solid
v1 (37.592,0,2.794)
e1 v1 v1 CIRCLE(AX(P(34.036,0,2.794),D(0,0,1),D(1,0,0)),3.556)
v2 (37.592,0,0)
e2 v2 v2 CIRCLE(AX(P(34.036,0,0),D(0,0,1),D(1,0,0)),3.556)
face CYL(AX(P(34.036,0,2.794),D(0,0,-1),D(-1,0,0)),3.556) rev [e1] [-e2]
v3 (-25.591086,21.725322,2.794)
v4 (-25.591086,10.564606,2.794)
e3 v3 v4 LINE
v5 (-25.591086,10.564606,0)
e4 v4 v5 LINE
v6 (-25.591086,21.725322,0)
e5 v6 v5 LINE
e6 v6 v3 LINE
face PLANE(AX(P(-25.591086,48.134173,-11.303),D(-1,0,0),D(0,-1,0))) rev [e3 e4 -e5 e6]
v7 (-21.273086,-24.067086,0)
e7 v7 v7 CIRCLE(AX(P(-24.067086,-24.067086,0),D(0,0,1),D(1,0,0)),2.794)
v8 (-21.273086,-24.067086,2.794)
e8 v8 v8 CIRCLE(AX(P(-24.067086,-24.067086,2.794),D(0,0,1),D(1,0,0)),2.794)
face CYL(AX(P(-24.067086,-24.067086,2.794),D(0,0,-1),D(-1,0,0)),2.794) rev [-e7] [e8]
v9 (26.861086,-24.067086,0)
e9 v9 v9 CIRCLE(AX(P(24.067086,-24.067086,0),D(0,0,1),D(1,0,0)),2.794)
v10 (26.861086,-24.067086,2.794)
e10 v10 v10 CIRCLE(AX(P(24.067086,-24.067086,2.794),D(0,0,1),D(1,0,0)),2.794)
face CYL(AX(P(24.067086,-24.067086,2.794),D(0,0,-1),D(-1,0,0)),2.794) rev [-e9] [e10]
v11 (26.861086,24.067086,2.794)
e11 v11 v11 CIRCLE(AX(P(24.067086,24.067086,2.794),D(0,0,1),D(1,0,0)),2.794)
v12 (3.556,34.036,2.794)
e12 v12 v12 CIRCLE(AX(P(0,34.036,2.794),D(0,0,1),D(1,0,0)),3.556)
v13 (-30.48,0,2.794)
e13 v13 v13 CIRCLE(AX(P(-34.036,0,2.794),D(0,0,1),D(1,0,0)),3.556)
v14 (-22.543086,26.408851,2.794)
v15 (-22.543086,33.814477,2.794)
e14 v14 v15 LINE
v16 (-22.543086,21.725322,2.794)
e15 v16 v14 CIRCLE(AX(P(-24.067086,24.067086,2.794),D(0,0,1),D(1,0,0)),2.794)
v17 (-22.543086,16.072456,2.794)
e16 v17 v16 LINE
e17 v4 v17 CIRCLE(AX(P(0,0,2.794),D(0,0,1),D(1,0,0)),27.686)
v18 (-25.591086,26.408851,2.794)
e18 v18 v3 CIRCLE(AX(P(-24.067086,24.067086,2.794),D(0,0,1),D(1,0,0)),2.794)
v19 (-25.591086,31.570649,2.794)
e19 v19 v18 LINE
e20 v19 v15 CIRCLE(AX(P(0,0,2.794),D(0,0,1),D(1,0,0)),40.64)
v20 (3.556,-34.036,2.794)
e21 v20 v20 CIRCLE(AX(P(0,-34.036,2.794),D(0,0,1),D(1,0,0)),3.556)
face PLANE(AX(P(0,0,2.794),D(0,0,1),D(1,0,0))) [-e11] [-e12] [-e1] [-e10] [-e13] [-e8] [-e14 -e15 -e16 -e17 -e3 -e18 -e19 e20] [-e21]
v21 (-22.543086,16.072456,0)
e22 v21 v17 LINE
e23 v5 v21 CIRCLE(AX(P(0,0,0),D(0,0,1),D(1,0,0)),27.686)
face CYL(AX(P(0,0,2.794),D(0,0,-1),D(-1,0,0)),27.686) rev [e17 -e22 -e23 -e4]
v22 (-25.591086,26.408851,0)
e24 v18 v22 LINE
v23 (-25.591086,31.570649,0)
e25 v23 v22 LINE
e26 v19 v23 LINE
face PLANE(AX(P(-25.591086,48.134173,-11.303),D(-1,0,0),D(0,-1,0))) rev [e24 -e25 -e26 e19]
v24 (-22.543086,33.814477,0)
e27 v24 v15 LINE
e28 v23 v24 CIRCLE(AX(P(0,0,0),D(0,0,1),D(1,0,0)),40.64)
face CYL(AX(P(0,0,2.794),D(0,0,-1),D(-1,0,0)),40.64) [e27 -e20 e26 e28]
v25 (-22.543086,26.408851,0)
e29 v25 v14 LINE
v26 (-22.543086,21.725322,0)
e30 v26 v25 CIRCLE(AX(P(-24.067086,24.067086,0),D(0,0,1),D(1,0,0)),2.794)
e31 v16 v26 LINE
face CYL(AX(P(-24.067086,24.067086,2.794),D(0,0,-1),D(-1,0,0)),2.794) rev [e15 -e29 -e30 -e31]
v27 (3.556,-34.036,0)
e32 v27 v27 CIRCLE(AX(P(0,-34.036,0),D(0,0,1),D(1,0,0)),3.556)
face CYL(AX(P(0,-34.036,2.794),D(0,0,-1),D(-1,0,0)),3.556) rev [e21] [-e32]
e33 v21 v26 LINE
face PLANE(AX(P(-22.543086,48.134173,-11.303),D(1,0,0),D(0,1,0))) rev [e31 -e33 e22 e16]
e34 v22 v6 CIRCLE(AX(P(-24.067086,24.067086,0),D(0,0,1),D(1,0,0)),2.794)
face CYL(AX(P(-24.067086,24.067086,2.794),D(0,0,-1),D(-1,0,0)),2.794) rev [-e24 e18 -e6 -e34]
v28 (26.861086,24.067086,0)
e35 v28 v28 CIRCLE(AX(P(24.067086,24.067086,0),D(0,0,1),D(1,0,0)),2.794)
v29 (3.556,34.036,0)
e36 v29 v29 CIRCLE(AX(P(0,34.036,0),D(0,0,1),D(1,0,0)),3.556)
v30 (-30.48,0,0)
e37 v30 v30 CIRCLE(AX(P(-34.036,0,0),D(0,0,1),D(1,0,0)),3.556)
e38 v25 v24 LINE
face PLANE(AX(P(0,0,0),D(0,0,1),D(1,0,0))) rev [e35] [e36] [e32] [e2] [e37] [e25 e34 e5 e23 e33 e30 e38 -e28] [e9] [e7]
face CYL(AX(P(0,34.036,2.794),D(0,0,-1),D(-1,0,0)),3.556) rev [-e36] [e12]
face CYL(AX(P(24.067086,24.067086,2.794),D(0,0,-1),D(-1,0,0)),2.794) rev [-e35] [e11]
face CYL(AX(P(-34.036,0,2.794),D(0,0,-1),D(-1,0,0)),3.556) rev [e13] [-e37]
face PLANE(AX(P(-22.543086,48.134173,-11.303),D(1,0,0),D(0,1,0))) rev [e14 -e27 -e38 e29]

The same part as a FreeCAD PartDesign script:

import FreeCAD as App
import Part
import Sketcher
from FreeCAD import Vector
Q = App.Units.Quantity


def add_polygon(sketch, points):
    """Adds a closed chain of lines whose ends are joined by coincident constraints."""
    first, n = sketch.GeometryCount, len(points)
    for a, b in zip(points, points[1:] + points[:1]):
        sketch.addGeometry(Part.LineSegment(App.Vector(*a, 0), App.Vector(*b, 0)), False)
    for i in range(n):
        sketch.addConstraint(Sketcher.Constraint("Coincident", first + i, 2, first + (i + 1) % n, 1))

doc = App.newDocument("Part")
params = doc.addObject("Spreadsheet::Sheet", "Params")
for row, (alias, value) in enumerate([
    ("sketch1_diameter", "3.2 in"),
    ("sketch1_diameter2", "0.22 in"),
    ("sketch1_diameter3", "0.28 in"),
    ("sketch1_diameter4", "2.18 in"),
    ("pad1_length", "0.11 in"),
    ("sketch2_width", "0.12 in"),
    ("pocket1_length", "0.555 in"),
], start=1):
    params.set(f"A{row}", alias)
    params.set(f"B{row}", "=" + value)
    params.setAlias(f"B{row}", alias)

body = doc.addObject("PartDesign::Body", "Body")

# Sketch on XY plane
sketch1 = body.newObject("Sketcher::SketchObject", "Sketch")
sketch1.AttachmentSupport = (doc.getObject("XY_Plane"), [""])
sketch1.MapMode = "FlatFace"
sketch1.addGeometry([
    Part.Circle(Vector(0, 0, 0), Vector(0, 0, 1), 40.6),  # 0
    Part.Circle(Vector(-24.1, -24.1, 0), Vector(0, 0, 1), 2.8),  # 1
    Part.Circle(Vector(0, -34, 0), Vector(0, 0, 1), 3.6),  # 2
    Part.Circle(Vector(24.1, -24.1, 0), Vector(0, 0, 1), 2.8),  # 3
    Part.Circle(Vector(-34, 0, 0), Vector(0, 0, 1), 3.6),  # 4
    Part.Circle(Vector(-24.1, 24.1, 0), Vector(0, 0, 1), 2.8),  # 5
    Part.Circle(Vector(0, 0, 0), Vector(0, 0, 1), 27.7),  # 6
    Part.Circle(Vector(34, 0, 0), Vector(0, 0, 1), 3.6),  # 7
    Part.Circle(Vector(0, 34, 0), Vector(0, 0, 1), 3.6),  # 8
    Part.Circle(Vector(24.1, 24.1, 0), Vector(0, 0, 1), 2.8),  # 9
], False)
sketch1.addConstraint([
    Sketcher.Constraint("Coincident", 0, 3, -1, 1),
    Sketcher.Constraint("Coincident", 6, 3, -1, 1),
    Sketcher.Constraint("Equal", 1, 3),
    Sketcher.Constraint("Equal", 2, 4),
    Sketcher.Constraint("Equal", 3, 5),
    Sketcher.Constraint("Equal", 4, 7),
    Sketcher.Constraint("Equal", 7, 8),
    Sketcher.Constraint("Equal", 5, 9),
    Sketcher.Constraint("Symmetric", 3, 3, 5, 3, -1, 1),
    Sketcher.Constraint("Symmetric", 4, 3, 7, 3, -1, 1),
    Sketcher.Constraint("Symmetric", 2, 3, 8, 3, -1, 1),
    Sketcher.Constraint("Symmetric", 1, 3, 9, 3, -1, 1),
    Sketcher.Constraint("Symmetric", 1, 3, 3, 3, -2),
    Sketcher.Constraint("PointOnObject", 2, 3, -2),
    Sketcher.Constraint("PointOnObject", 4, 3, -1),
    Sketcher.Constraint("Diameter", 0, Q("3.2 in")),
    Sketcher.Constraint("Diameter", 1, Q("0.22 in")),
    Sketcher.Constraint("Diameter", 2, Q("0.28 in")),
    Sketcher.Constraint("Diameter", 6, Q("2.18 in")),
    Sketcher.Constraint("DistanceY", 2, 3, -1, 1, Q("1.34 in")),
    Sketcher.Constraint("DistanceX", 4, 3, -1, 1, Q("1.34 in")),
    Sketcher.Constraint("DistanceX", 1, 3, -1, 1, 24.067086),
    Sketcher.Constraint("DistanceY", 1, 3, -1, 1, 24.067086),
])
sketch1.setExpression("Constraints[15]", "Params.sketch1_diameter")
sketch1.setExpression("Constraints[16]", "Params.sketch1_diameter2")
sketch1.setExpression("Constraints[17]", "Params.sketch1_diameter3")
sketch1.setExpression("Constraints[18]", "Params.sketch1_diameter4")
pad1 = body.newObject("PartDesign::Pad", "Pad")
pad1.Profile = sketch1
pad1.setExpression("Length", "Params.pad1_length")

# Sketch on XY plane
sketch2 = body.newObject("Sketcher::SketchObject", "Sketch001")
sketch2.AttachmentSupport = (doc.getObject("XY_Plane"), [""])
sketch2.MapMode = "FlatFace"
sketch2.AttachmentOffset = App.Placement(Vector(0, 0, 0.11 * 25.4), App.Rotation())
add_polygon(sketch2, [(-25.6, 48.1), (-25.6, 0), (-22.5, 0), (-22.5, 48.1)])  # lines 0-3
sketch2.addConstraint([
    Sketcher.Constraint("Vertical", 0),
    Sketcher.Constraint("Horizontal", 1),
    Sketcher.Constraint("Vertical", 2),
    Sketcher.Constraint("Horizontal", 3),
    Sketcher.Constraint("PointOnObject", 0, 2, -1),
    Sketcher.Constraint("DistanceX", 1, 1, 1, 2, Q("0.12 in")),
    Sketcher.Constraint("DistanceY", 0, 2, 0, 1, 48.134173),
    Sketcher.Constraint("DistanceX", 0, 2, -1, 1, 25.591086),
])
sketch2.setExpression("Constraints[9]", "Params.sketch2_width")
pocket1 = body.newObject("PartDesign::Pocket", "Pocket")
pocket1.Profile = sketch2
pocket1.setExpression("Length", "Params.pocket1_length")

doc.recompute()
